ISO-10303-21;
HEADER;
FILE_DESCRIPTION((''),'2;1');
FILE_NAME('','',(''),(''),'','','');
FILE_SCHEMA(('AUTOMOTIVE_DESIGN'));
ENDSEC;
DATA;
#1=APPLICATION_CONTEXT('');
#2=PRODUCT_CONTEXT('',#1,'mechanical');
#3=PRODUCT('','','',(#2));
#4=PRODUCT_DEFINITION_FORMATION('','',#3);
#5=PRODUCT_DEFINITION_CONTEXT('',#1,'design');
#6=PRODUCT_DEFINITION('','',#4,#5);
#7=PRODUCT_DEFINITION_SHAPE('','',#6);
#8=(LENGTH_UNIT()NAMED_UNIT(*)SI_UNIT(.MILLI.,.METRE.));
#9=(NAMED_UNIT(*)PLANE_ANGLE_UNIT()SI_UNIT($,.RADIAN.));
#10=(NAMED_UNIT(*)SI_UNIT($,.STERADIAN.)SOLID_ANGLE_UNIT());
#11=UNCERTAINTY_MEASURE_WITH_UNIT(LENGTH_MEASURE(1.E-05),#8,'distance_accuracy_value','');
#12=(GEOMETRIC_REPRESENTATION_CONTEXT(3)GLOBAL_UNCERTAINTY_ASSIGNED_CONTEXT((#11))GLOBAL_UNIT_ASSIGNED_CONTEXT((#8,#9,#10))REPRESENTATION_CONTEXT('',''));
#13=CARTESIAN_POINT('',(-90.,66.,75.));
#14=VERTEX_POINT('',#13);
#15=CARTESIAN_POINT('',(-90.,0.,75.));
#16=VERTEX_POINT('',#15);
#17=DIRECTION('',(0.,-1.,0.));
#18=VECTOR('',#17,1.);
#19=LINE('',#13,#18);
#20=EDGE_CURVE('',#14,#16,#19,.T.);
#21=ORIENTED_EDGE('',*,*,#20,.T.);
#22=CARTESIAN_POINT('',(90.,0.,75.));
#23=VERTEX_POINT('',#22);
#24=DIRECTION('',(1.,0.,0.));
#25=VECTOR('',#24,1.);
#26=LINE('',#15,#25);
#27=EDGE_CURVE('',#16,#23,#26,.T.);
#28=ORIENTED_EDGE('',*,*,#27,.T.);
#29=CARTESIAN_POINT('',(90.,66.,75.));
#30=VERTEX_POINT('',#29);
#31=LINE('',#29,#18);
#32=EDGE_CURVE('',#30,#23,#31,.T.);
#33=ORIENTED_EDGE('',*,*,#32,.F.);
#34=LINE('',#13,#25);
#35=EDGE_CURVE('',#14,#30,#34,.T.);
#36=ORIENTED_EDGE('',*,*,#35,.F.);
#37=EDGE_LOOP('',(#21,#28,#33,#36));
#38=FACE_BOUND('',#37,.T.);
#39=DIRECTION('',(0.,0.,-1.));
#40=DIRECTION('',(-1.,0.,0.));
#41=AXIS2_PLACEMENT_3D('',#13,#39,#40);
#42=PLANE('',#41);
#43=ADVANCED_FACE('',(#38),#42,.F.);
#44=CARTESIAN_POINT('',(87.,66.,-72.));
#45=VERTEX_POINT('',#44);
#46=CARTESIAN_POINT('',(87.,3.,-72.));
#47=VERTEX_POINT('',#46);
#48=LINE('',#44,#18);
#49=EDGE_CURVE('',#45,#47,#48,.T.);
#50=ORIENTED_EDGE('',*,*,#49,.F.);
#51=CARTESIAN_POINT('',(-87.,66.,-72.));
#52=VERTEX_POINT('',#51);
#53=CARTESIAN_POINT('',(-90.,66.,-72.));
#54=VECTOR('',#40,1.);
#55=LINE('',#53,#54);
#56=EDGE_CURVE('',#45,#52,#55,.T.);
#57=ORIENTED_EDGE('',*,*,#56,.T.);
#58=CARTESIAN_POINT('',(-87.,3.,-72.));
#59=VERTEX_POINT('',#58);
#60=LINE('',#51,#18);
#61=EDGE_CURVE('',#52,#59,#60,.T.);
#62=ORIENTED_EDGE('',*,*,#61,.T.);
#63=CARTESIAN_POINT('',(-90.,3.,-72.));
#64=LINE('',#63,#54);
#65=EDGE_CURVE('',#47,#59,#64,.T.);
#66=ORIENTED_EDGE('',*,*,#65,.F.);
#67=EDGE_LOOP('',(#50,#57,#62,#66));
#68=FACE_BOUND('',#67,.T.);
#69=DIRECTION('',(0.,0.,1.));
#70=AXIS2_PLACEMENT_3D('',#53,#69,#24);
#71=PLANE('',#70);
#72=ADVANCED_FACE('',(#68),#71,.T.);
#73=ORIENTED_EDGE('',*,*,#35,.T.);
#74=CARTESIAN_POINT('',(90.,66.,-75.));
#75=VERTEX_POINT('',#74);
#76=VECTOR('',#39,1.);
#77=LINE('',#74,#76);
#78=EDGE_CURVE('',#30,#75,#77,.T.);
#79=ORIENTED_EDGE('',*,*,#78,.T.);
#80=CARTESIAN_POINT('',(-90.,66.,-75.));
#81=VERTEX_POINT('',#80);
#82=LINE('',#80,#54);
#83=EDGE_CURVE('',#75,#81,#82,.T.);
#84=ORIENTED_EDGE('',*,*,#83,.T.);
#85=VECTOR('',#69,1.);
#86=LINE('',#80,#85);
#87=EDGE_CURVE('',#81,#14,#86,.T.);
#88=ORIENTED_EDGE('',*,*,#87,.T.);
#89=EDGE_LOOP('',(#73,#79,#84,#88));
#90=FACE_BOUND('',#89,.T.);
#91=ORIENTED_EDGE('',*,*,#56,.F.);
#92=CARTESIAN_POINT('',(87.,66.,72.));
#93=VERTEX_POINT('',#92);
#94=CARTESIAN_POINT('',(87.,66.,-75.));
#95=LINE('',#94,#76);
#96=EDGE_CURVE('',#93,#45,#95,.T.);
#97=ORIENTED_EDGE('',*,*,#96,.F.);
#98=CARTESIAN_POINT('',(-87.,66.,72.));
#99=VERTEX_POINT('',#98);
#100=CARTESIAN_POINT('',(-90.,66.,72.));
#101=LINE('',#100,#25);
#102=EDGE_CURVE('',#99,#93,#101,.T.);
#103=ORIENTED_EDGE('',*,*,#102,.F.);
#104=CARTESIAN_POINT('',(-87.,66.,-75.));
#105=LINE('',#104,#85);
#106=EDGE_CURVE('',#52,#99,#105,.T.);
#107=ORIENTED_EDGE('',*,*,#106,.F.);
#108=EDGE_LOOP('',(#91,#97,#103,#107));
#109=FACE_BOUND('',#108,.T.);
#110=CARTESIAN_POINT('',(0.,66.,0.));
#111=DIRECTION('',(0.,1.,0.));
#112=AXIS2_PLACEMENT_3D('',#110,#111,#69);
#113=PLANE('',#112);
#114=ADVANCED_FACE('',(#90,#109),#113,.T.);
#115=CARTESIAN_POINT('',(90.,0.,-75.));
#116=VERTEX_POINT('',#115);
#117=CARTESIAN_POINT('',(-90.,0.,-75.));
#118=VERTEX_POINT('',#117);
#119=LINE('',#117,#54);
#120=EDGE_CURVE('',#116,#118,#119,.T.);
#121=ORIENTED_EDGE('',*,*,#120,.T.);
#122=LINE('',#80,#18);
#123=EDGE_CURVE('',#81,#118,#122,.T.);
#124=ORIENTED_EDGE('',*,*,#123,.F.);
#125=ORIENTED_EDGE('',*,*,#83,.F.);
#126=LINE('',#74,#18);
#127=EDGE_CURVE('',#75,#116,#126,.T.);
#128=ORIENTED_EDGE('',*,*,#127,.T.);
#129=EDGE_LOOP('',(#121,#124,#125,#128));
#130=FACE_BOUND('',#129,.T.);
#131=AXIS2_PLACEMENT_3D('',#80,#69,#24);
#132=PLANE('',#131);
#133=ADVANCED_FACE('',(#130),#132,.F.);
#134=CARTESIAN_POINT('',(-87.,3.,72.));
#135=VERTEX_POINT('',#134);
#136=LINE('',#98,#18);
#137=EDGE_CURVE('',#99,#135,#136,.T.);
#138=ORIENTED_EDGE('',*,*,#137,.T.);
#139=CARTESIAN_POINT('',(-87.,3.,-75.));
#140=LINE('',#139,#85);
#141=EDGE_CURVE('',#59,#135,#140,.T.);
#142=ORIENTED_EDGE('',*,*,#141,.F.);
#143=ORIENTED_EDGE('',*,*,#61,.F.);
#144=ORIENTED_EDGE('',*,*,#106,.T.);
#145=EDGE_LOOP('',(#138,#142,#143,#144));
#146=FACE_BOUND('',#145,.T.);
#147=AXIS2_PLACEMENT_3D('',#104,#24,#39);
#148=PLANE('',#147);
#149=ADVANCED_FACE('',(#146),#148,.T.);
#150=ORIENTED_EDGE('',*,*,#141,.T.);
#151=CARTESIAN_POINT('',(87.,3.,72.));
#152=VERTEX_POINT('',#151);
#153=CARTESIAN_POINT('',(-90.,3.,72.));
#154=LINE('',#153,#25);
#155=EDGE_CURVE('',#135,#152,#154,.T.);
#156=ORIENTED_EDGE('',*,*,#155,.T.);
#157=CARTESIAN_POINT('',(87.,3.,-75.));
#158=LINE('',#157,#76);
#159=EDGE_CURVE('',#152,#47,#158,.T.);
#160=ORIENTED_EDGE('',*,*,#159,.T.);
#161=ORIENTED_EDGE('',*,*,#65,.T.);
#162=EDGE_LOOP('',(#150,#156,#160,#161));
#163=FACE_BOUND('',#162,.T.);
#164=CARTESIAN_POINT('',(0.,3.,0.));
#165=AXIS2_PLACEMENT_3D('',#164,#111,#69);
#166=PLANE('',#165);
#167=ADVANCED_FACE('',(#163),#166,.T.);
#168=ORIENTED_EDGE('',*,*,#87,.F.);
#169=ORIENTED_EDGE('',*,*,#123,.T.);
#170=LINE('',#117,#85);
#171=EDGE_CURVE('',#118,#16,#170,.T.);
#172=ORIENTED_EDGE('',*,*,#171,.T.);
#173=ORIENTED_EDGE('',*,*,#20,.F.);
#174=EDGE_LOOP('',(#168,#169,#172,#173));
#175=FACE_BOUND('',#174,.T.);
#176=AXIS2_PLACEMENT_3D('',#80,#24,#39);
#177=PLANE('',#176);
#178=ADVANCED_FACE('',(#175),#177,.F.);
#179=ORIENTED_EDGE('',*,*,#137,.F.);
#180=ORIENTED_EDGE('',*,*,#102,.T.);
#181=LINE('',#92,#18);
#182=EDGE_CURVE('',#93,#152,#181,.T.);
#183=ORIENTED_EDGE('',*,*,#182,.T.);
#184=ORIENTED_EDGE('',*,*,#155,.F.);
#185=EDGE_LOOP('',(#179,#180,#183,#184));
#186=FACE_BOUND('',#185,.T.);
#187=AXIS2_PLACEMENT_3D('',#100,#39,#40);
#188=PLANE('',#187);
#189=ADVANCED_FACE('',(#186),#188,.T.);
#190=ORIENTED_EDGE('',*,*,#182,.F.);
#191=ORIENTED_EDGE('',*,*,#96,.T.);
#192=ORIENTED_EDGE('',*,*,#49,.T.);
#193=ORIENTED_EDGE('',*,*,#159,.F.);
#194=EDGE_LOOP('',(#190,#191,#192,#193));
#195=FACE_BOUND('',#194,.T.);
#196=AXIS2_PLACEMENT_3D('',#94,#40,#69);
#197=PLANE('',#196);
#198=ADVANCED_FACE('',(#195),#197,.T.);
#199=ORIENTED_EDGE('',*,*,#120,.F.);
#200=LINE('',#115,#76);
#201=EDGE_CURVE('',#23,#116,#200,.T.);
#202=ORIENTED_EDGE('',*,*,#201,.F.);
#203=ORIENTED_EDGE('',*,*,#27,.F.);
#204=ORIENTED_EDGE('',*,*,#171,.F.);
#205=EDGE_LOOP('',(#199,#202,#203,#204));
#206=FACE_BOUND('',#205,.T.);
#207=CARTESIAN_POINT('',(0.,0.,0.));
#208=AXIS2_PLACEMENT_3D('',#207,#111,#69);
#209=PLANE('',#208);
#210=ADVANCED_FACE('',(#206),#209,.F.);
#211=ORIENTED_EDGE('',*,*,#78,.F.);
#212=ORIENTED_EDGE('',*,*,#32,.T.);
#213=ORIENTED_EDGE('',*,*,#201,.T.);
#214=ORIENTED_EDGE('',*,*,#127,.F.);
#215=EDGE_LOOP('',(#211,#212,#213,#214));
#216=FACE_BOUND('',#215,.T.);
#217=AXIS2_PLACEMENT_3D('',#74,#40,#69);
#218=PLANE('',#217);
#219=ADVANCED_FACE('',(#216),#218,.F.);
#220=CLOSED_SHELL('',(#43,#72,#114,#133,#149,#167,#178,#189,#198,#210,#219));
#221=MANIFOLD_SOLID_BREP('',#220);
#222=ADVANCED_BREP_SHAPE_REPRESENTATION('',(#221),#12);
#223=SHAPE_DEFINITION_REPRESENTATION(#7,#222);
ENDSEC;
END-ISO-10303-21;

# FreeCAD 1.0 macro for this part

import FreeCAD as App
import Part
import Sketcher

V = App.Vector
Q = App.Units.Quantity


def faces_at(feature, points):
    """Names of the faces that lie closest to the given points."""
    faces = feature.Shape.Faces
    near = lambda p: min(range(len(faces)), key=lambda i: faces[i].distToShape(Part.Vertex(*p))[0])
    return sorted({f"Face{near(p) + 1}" for p in points})

doc = App.newDocument("Part")
body = doc.addObject("PartDesign::Body", "Body")

# Sketch on XZ plane
sketch1 = body.newObject("Sketcher::SketchObject", "Sketch")
sketch1.AttachmentSupport = (doc.getObject("XZ_Plane"), [""])
sketch1.MapMode = "FlatFace"
sketch1.addGeometry([
    Part.LineSegment(V(-90, -75, 0), V(-90, 75, 0)),
    Part.LineSegment(V(-90, 75, 0), V(90, 75, 0)),
    Part.LineSegment(V(90, 75, 0), V(90, -75, 0)),
    Part.LineSegment(V(90, -75, 0), V(-90, -75, 0)),
], False)
sketch1.addConstraint([
    Sketcher.Constraint("Coincident", 0, 2, 1, 1),
    Sketcher.Constraint("Coincident", 1, 2, 2, 1),
    Sketcher.Constraint("Coincident", 2, 2, 3, 1),
    Sketcher.Constraint("Coincident", 3, 2, 0, 1),
    Sketcher.Constraint("Vertical", 0),
    Sketcher.Constraint("Horizontal", 1),
    Sketcher.Constraint("Vertical", 2),
    Sketcher.Constraint("Horizontal", 3),
    Sketcher.Constraint("Symmetric", 0, 2, 2, 2, -1, 1),
    Sketcher.Constraint("DistanceX", 1, 1, 1, 2, Q("180 mm")),
    Sketcher.Constraint("DistanceY", 0, 1, 0, 2, Q("150 mm")),
])
pad1 = body.newObject("PartDesign::Pad", "Pad")
pad1.Profile = sketch1
pad1.Length = 66
pad1.Reversed = True
doc.recompute()

thickness = body.newObject("PartDesign::Thickness", "Thickness")
thickness.Base = (pad1, faces_at(pad1, [(0, 66, 0)]))
thickness.Value = 3
thickness.Reversed = True
thickness.Join = "Intersection"

doc.recompute()
